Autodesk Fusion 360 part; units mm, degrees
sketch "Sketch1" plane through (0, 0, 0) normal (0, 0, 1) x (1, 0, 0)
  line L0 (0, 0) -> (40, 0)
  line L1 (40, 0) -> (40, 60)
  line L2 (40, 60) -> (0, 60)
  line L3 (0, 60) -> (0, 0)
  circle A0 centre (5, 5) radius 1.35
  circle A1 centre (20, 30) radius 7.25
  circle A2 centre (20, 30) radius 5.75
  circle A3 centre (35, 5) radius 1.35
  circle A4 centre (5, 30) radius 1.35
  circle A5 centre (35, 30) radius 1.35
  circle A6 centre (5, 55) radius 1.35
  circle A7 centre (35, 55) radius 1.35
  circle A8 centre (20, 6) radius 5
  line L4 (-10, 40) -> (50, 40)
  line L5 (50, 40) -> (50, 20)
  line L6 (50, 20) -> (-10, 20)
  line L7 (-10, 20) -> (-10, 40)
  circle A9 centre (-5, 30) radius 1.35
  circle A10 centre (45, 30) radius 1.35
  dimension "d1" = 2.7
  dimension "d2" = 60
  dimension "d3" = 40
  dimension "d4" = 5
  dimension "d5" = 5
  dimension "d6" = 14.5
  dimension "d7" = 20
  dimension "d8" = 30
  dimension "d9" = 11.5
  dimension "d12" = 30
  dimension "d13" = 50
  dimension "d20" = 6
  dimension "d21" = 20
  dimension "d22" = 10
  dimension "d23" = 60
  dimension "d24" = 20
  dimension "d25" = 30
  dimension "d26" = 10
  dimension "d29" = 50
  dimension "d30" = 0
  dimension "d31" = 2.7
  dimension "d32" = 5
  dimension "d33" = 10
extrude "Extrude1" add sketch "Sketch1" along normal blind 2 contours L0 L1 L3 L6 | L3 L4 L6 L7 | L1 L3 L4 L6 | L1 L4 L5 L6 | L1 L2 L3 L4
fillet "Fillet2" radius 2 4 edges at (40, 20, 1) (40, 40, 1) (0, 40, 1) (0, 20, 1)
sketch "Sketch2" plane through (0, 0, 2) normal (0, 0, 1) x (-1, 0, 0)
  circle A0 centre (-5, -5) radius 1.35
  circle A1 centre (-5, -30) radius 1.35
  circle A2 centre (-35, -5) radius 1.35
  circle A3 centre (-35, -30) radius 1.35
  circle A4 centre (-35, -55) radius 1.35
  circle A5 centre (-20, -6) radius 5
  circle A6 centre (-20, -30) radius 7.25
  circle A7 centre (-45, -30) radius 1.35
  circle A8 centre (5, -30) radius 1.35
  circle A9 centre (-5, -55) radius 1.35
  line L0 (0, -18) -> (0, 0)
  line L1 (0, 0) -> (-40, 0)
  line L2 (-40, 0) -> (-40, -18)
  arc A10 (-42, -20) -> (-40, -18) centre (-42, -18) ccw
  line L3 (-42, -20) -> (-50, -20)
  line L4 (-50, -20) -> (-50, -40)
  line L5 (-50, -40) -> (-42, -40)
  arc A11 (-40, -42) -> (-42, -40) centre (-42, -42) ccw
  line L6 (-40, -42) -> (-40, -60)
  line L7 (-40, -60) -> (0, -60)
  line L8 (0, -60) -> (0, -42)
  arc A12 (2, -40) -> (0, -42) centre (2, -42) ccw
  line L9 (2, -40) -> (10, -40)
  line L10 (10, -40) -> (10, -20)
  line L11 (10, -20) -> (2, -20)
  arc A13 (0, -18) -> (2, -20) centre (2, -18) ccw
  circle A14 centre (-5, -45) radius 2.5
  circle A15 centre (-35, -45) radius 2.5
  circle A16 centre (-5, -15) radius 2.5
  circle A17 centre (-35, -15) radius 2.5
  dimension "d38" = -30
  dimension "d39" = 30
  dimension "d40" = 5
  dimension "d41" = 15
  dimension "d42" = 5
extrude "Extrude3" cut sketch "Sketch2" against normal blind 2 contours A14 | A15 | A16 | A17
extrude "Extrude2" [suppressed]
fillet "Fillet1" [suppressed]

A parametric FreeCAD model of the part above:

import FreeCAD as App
import Part
import Sketcher
from FreeCAD import Vector
Q = App.Units.Quantity


def edges_at(feature, points):
    """Names of the edges that pass closest to the given points."""
    edges = feature.Shape.Edges
    near = lambda p: min(range(len(edges)), key=lambda i: edges[i].distToShape(Part.Vertex(*p))[0])
    return sorted({f"Edge{near(p) + 1}" for p in points})

doc = App.newDocument("Part")
body = doc.addObject("PartDesign::Body", "Body")

# Sketch on XY plane
sketch1 = body.newObject("Sketcher::SketchObject", "Sketch")
sketch1.AttachmentSupport = (doc.getObject("XY_Plane"), [""])
sketch1.MapMode = "FlatFace"
sketch1.addGeometry([
    Part.LineSegment(Vector(0, 20, 0), Vector(0, 0, 0)),  # 0
    Part.LineSegment(Vector(0, 0, 0), Vector(40, 0, 0)),  # 1
    Part.LineSegment(Vector(40, 0, 0), Vector(40, 20, 0)),  # 2
    Part.LineSegment(Vector(40, 20, 0), Vector(50, 20, 0)),  # 3
    Part.LineSegment(Vector(50, 20, 0), Vector(50, 40, 0)),  # 4
    Part.LineSegment(Vector(50, 40, 0), Vector(40, 40, 0)),  # 5
    Part.LineSegment(Vector(40, 40, 0), Vector(40, 60, 0)),  # 6
    Part.LineSegment(Vector(40, 60, 0), Vector(0, 60, 0)),  # 7
    Part.LineSegment(Vector(0, 60, 0), Vector(0, 40, 0)),  # 8
    Part.LineSegment(Vector(0, 40, 0), Vector(-10, 40, 0)),  # 9
    Part.LineSegment(Vector(-10, 40, 0), Vector(-10, 20, 0)),  # 10
    Part.LineSegment(Vector(-10, 20, 0), Vector(0, 20, 0)),  # 11
    Part.Circle(Vector(5, 5, 0), Vector(0, 0, 1), 1.35),  # 12
    Part.Circle(Vector(20, 6, 0), Vector(0, 0, 1), 5),  # 13
    Part.Circle(Vector(35, 5, 0), Vector(0, 0, 1), 1.35),  # 14
    Part.Circle(Vector(35, 30, 0), Vector(0, 0, 1), 1.35),  # 15
    Part.Circle(Vector(5, 30, 0), Vector(0, 0, 1), 1.35),  # 16
    Part.Circle(Vector(20, 30, 0), Vector(0, 0, 1), 7.25),  # 17
    Part.Circle(Vector(-5, 30, 0), Vector(0, 0, 1), 1.35),  # 18
    Part.Circle(Vector(35, 55, 0), Vector(0, 0, 1), 1.35),  # 19
    Part.Circle(Vector(5, 55, 0), Vector(0, 0, 1), 1.35),  # 20
    Part.Circle(Vector(45, 30, 0), Vector(0, 0, 1), 1.35),  # 21
], False)
sketch1.addConstraint([
    Sketcher.Constraint("Coincident", 0, 2, 1, 1),
    Sketcher.Constraint("Coincident", 1, 2, 2, 1),
    Sketcher.Constraint("Coincident", 2, 2, 3, 1),
    Sketcher.Constraint("Coincident", 3, 2, 4, 1),
    Sketcher.Constraint("Coincident", 4, 2, 5, 1),
    Sketcher.Constraint("Coincident", 5, 2, 6, 1),
    Sketcher.Constraint("Coincident", 6, 2, 7, 1),
    Sketcher.Constraint("Coincident", 7, 2, 8, 1),
    Sketcher.Constraint("Coincident", 8, 2, 9, 1),
    Sketcher.Constraint("Coincident", 9, 2, 10, 1),
    Sketcher.Constraint("Coincident", 10, 2, 11, 1),
    Sketcher.Constraint("Coincident", 11, 2, 0, 1),
    Sketcher.Constraint("Vertical", 0),
    Sketcher.Constraint("Horizontal", 1),
    Sketcher.Constraint("Vertical", 2),
    Sketcher.Constraint("Horizontal", 3),
    Sketcher.Constraint("Vertical", 4),
    Sketcher.Constraint("Horizontal", 5),
    Sketcher.Constraint("Vertical", 6),
    Sketcher.Constraint("Horizontal", 7),
    Sketcher.Constraint("Vertical", 8),
    Sketcher.Constraint("Horizontal", 9),
    Sketcher.Constraint("Vertical", 10),
    Sketcher.Constraint("Horizontal", 11),
    Sketcher.Constraint("Coincident", 0, 2, -1, 1),
    Sketcher.Constraint("Equal", 12, 14),
    Sketcher.Constraint("Equal", 14, 15),
    Sketcher.Constraint("Equal", 15, 16),
    Sketcher.Constraint("Equal", 16, 18),
    Sketcher.Constraint("Equal", 18, 19),
    Sketcher.Constraint("Equal", 19, 20),
    Sketcher.Constraint("Equal", 20, 21),
    Sketcher.Constraint("Symmetric", 16, 3, 18, 3, -2),
    Sketcher.Constraint("PointOnObject", 7, 2, -2),
    Sketcher.Constraint("Horizontal", 12, 3, 14, 3),
    Sketcher.Constraint("Horizontal", 15, 3, 16, 3),
    Sketcher.Constraint("Horizontal", 16, 3, 17, 3),
    Sketcher.Constraint("Horizontal", 19, 3, 20, 3),
    Sketcher.Constraint("Horizontal", 18, 3, 21, 3),
    Sketcher.Constraint("Horizontal", 5, 2, 8, 2),
    Sketcher.Constraint("Horizontal", 3, 2, 10, 2),
    Sketcher.Constraint("Vertical", 14, 3, 15, 3),
    Sketcher.Constraint("Vertical", 12, 3, 16, 3),
    Sketcher.Constraint("Vertical", 13, 3, 17, 3),
    Sketcher.Constraint("Vertical", 15, 3, 19, 3),
    Sketcher.Constraint("Vertical", 16, 3, 20, 3),
    Sketcher.Constraint("Vertical", 2, 2, 5, 2),
    Sketcher.Constraint("Equal", 5, 9),
    Sketcher.Constraint("Equal", 2, 4),
    Sketcher.Constraint("Equal", 4, 6),
    Sketcher.Constraint("Diameter", 13, Q("10 mm")),
    Sketcher.Constraint("Diameter", 12, Q("2.7 mm")),
    Sketcher.Constraint("Diameter", 17, Q("14.5 mm")),
    Sketcher.Constraint("DistanceX", 1, 1, 1, 2, Q("40 mm")),
    Sketcher.Constraint("DistanceX", 3, 1, 3, 2, Q("10 mm")),
    Sketcher.Constraint("DistanceY", 0, 2, 0, 1, Q("20 mm")),
    Sketcher.Constraint("DistanceX", -1, 1, 12, 3, Q("5 mm")),
    Sketcher.Constraint("DistanceY", -1, 1, 12, 3, Q("5 mm")),
    Sketcher.Constraint("DistanceX", -1, 1, 13, 3, Q("20 mm")),
    Sketcher.Constraint("DistanceY", -1, 1, 13, 3, Q("6 mm")),
    Sketcher.Constraint("DistanceY", -1, 1, 15, 3, Q("30 mm")),
    Sketcher.Constraint("DistanceX", 12, 3, 14, 3, Q("30 mm")),
    Sketcher.Constraint("DistanceY", 14, 3, 19, 3, Q("50 mm")),
    Sketcher.Constraint("DistanceX", 15, 3, 21, 3, Q("10 mm")),
])
pad1 = body.newObject("PartDesign::Pad", "Pad")
pad1.Profile = sketch1
pad1.Length = 2
doc.recompute()

fillet = body.newObject("PartDesign::Fillet", "Fillet")
fillet.Base = (pad1, edges_at(pad1, [
    (40, 20, 1),
    (40, 40, 1),
    (0, 40, 1),
    (0, 20, 1),
]))
fillet.Radius = 2

# Sketch on XY plane
sketch2 = body.newObject("Sketcher::SketchObject", "Sketch001")
sketch2.AttachmentSupport = (doc.getObject("XY_Plane"), [""])
sketch2.MapMode = "FlatFace"
sketch2.AttachmentOffset = App.Placement(Vector(0, 0, 2), App.Rotation())
sketch2.addGeometry([
    Part.Circle(Vector(5, 45, 0), Vector(0, 0, 1), 2.5),
    Part.Circle(Vector(35, 45, 0), Vector(0, 0, 1), 2.5),
    Part.Circle(Vector(5, 15, 0), Vector(0, 0, 1), 2.5),
    Part.Circle(Vector(35, 15, 0), Vector(0, 0, 1), 2.5),
], False)
sketch2.addConstraint([
    Sketcher.Constraint("Equal", 0, 1),
    Sketcher.Constraint("Equal", 1, 2),
    Sketcher.Constraint("Equal", 2, 3),
    Sketcher.Constraint("Horizontal", 0, 3, 1, 3),
    Sketcher.Constraint("Horizontal", 2, 3, 3, 3),
    Sketcher.Constraint("Vertical", 0, 3, 2, 3),
    Sketcher.Constraint("Vertical", 1, 3, 3, 3),
    Sketcher.Constraint("Diameter", 0, Q("5 mm")),
    Sketcher.Constraint("DistanceX", -1, 1, 0, 3, Q("5 mm")),
    Sketcher.Constraint("DistanceY", -1, 1, 2, 3, Q("15 mm")),
    Sketcher.Constraint("DistanceX", 0, 3, 1, 3, Q("30 mm")),
    Sketcher.Constraint("DistanceY", 2, 3, 0, 3, Q("30 mm")),
])
pocket1 = body.newObject("PartDesign::Pocket", "Pocket")
pocket1.Profile = sketch2
pocket1.Length = 2

doc.recompute()
